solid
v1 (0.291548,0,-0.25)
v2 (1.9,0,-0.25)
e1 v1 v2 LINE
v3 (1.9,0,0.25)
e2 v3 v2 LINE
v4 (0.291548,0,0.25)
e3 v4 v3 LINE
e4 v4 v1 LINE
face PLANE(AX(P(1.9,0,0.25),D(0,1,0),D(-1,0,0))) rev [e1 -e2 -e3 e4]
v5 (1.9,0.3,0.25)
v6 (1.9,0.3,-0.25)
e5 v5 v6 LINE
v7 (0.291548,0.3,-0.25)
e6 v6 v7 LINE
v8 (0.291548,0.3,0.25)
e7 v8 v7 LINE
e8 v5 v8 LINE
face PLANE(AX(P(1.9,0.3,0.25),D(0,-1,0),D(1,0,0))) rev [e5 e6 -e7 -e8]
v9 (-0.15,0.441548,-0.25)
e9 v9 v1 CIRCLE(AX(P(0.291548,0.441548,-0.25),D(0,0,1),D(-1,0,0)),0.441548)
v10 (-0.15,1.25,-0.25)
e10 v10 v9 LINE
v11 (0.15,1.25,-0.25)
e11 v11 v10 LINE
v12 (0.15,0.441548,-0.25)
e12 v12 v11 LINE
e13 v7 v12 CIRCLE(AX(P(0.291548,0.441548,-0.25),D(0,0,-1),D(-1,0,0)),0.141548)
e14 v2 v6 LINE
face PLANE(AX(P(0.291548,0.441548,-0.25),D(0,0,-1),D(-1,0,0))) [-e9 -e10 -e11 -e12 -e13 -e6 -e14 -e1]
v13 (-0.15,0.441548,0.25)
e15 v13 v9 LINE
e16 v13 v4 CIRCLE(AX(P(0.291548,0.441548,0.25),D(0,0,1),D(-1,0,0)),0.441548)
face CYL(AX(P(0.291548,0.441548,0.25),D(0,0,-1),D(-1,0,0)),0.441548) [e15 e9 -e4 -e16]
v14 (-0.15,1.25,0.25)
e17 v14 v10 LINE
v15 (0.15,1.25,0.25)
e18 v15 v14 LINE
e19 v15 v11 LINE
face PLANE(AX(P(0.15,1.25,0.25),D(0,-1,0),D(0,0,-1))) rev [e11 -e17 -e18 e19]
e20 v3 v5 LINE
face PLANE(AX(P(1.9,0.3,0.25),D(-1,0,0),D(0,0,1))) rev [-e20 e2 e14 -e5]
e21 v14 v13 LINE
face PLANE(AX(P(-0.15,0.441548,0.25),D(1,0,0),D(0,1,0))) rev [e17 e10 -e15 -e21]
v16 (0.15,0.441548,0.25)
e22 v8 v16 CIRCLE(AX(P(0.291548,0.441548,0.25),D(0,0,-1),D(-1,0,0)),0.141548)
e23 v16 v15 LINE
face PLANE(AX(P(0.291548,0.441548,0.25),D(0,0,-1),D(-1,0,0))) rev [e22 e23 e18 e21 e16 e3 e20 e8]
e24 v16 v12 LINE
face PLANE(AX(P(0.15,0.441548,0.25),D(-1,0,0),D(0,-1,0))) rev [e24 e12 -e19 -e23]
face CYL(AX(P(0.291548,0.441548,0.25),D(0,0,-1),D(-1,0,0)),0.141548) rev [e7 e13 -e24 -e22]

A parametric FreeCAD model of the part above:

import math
import FreeCAD as App
import Part
import Sketcher
Q = App.Units.Quantity

doc = App.newDocument("Part")
body = doc.addObject("PartDesign::Body", "Body")

sketch1 = body.newObject("Sketcher::SketchObject", "Sketch")
sketch1.AttachmentSupport = (doc.getObject("XY_Plane"), [""])
sketch1.MapMode = "FlatFace"
sketch1.addGeometry(Part.LineSegment(App.Vector(1.9, 0.3, 0), App.Vector(0.29, 0.3, 0)), False)
sketch1.addGeometry(Part.ArcOfCircle(Part.Circle(App.Vector(0.29, 0.44, 0), App.Vector(0, 0, 1), 0.14), math.radians(-180), math.radians(-90)), False)
sketch1.addGeometry(Part.LineSegment(App.Vector(0.15, 0.44, 0), App.Vector(0.15, 1.25, 0)), False)
sketch1.addGeometry(Part.LineSegment(App.Vector(0.15, 1.25, 0), App.Vector(-0.15, 1.25, 0)), False)
sketch1.addGeometry(Part.LineSegment(App.Vector(-0.15, 1.25, 0), App.Vector(-0.15, 0.44, 0)), False)
sketch1.addGeometry(Part.ArcOfCircle(Part.Circle(App.Vector(0.29, 0.44, 0), App.Vector(0, 0, 1), 0.44), math.radians(180), math.radians(270)), False)
sketch1.addGeometry(Part.LineSegment(App.Vector(0.29, 0, 0), App.Vector(1.9, 0, 0)), False)
sketch1.addGeometry(Part.LineSegment(App.Vector(1.9, 0, 0), App.Vector(1.9, 0.3, 0)), False)
sketch1.addConstraint(Sketcher.Constraint("Tangent", 0, 2, 1, 2))
sketch1.addConstraint(Sketcher.Constraint("Tangent", 1, 1, 2, 1))
sketch1.addConstraint(Sketcher.Constraint("Coincident", 2, 2, 3, 1))
sketch1.addConstraint(Sketcher.Constraint("Coincident", 3, 2, 4, 1))
sketch1.addConstraint(Sketcher.Constraint("Tangent", 4, 2, 5, 1))
sketch1.addConstraint(Sketcher.Constraint("Tangent", 5, 2, 6, 1))
sketch1.addConstraint(Sketcher.Constraint("Coincident", 6, 2, 7, 1))
sketch1.addConstraint(Sketcher.Constraint("Coincident", 7, 2, 0, 1))
sketch1.addConstraint(Sketcher.Constraint("Horizontal", 0))
sketch1.addConstraint(Sketcher.Constraint("Vertical", 2))
sketch1.addConstraint(Sketcher.Constraint("Horizontal", 3))
sketch1.addConstraint(Sketcher.Constraint("Vertical", 4))
sketch1.addConstraint(Sketcher.Constraint("Horizontal", 6))
sketch1.addConstraint(Sketcher.Constraint("Vertical", 7))
sketch1.addConstraint(Sketcher.Constraint("Coincident", 5, 3, 1, 3))
sketch1.addConstraint(Sketcher.Constraint("PointOnObject", 5, 2, -1))
sketch1.addConstraint(Sketcher.Constraint("DistanceX", 3, 2, 3, 1, Q("0.3 mm")))
sketch1.addConstraint(Sketcher.Constraint("DistanceX", -1, 1, 6, 2, Q("1.9 mm")))
sketch1.addConstraint(Sketcher.Constraint("DistanceX", -1, 1, 1, 1, Q("0.15 mm")))
sketch1.addConstraint(Sketcher.Constraint("DistanceY", -1, 1, 2, 2, Q("1.25 mm")))
sketch1.addConstraint(Sketcher.Constraint("Radius", 1, Q("0.141548 mm")))
pad1 = body.newObject("PartDesign::Pad", "Pad")
pad1.Profile = sketch1
pad1.Type = "TwoLengths"
pad1.Length = 0.25
pad1.Length2 = 0.25

doc.recompute()
